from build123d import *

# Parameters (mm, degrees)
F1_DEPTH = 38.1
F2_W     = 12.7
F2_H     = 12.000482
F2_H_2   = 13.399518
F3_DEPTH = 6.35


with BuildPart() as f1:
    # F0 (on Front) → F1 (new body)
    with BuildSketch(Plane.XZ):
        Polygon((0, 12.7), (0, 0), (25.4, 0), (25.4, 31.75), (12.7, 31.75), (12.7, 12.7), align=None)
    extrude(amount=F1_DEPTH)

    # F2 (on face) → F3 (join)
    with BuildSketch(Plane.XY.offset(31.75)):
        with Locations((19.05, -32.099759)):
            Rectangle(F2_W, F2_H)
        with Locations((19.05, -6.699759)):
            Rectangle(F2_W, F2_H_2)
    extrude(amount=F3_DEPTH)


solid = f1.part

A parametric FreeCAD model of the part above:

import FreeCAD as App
import Part
import Sketcher
from FreeCAD import Vector
Q = App.Units.Quantity

doc = App.newDocument("Part")
params = doc.addObject("Spreadsheet::Sheet", "Params")
for row, (alias, value) in enumerate([
    ("sketch1_width", "1 in"),
    ("sketch1_height", "1.25 in"),
    ("pad1_length", "1.5 in"),
    ("sketch2_width", "0.5 in"),
    ("pad2_length", "0.25 in"),
], start=1):
    params.set(f"A{row}", alias)
    params.set(f"B{row}", "=" + value)
    params.setAlias(f"B{row}", alias)

body = doc.addObject("PartDesign::Body", "Body")

# Sketch on XZ plane
sketch1 = doc.addObject("Sketcher::SketchObject", "Sketch")
body.addObject(sketch1)
sketch1.AttachmentSupport = (doc.XZ_Plane, [""])
sketch1.MapMode = "FlatFace"
sketch1.addGeometry(Part.LineSegment(Vector(0, 13, 0), Vector(0, 0, 0)), False)
sketch1.addGeometry(Part.LineSegment(Vector(0, 0, 0), Vector(25, 0, 0)), False)
sketch1.addGeometry(Part.LineSegment(Vector(25, 0, 0), Vector(25, 32, 0)), False)
sketch1.addGeometry(Part.LineSegment(Vector(25, 32, 0), Vector(13, 32, 0)), False)
sketch1.addGeometry(Part.LineSegment(Vector(13, 32, 0), Vector(13, 13, 0)), False)
sketch1.addGeometry(Part.LineSegment(Vector(13, 13, 0), Vector(0, 13, 0)), False)
sketch1.addConstraint(Sketcher.Constraint("Coincident", 0, 2, 1, 1))
sketch1.addConstraint(Sketcher.Constraint("Coincident", 1, 2, 2, 1))
sketch1.addConstraint(Sketcher.Constraint("Coincident", 2, 2, 3, 1))
sketch1.addConstraint(Sketcher.Constraint("Coincident", 3, 2, 4, 1))
sketch1.addConstraint(Sketcher.Constraint("Coincident", 4, 2, 5, 1))
sketch1.addConstraint(Sketcher.Constraint("Coincident", 5, 2, 0, 1))
sketch1.addConstraint(Sketcher.Constraint("Vertical", 0))
sketch1.addConstraint(Sketcher.Constraint("Horizontal", 1))
sketch1.addConstraint(Sketcher.Constraint("Vertical", 2))
sketch1.addConstraint(Sketcher.Constraint("Horizontal", 3))
sketch1.addConstraint(Sketcher.Constraint("Vertical", 4))
sketch1.addConstraint(Sketcher.Constraint("Horizontal", 5))
sketch1.addConstraint(Sketcher.Constraint("Coincident", 0, 2, -1, 1))
sketch1.addConstraint(Sketcher.Constraint("Equal", 3, 5))
sketch1.addConstraint(Sketcher.Constraint("Equal", 5, 0))
sketch1.addConstraint(Sketcher.Constraint("DistanceX", 1, 1, 1, 2, Q("1 in")))
sketch1.addConstraint(Sketcher.Constraint("DistanceY", 2, 1, 2, 2, Q("1.25 in")))
sketch1.setExpression("Constraints[15]", "Params.sketch1_width")
sketch1.setExpression("Constraints[16]", "Params.sketch1_height")
pad1 = doc.addObject("PartDesign::Pad", "Pad")
body.addObject(pad1)
pad1.Profile = sketch1
pad1.setExpression("Length", "Params.pad1_length")

# Sketch on XY plane
sketch2 = doc.addObject("Sketcher::SketchObject", "Sketch001")
body.addObject(sketch2)
sketch2.AttachmentSupport = (doc.XY_Plane, [""])
sketch2.MapMode = "FlatFace"
sketch2.AttachmentOffset = App.Placement(Vector(0, 0, 1.25 * 25.4), App.Rotation())
sketch2.addGeometry(Part.LineSegment(Vector(13, -26, 0), Vector(13, -38, 0)), False)
sketch2.addGeometry(Part.LineSegment(Vector(13, -38, 0), Vector(25, -38, 0)), False)
sketch2.addGeometry(Part.LineSegment(Vector(25, -38, 0), Vector(25, -26, 0)), False)
sketch2.addGeometry(Part.LineSegment(Vector(25, -26, 0), Vector(13, -26, 0)), False)
sketch2.addGeometry(Part.LineSegment(Vector(13, 0, 0), Vector(13, -13, 0)), False)
sketch2.addGeometry(Part.LineSegment(Vector(13, -13, 0), Vector(25, -13, 0)), False)
sketch2.addGeometry(Part.LineSegment(Vector(25, -13, 0), Vector(25, 0, 0)), False)
sketch2.addGeometry(Part.LineSegment(Vector(25, 0, 0), Vector(13, 0, 0)), False)
sketch2.addConstraint(Sketcher.Constraint("Coincident", 0, 2, 1, 1))
sketch2.addConstraint(Sketcher.Constraint("Coincident", 1, 2, 2, 1))
sketch2.addConstraint(Sketcher.Constraint("Coincident", 2, 2, 3, 1))
sketch2.addConstraint(Sketcher.Constraint("Coincident", 3, 2, 0, 1))
sketch2.addConstraint(Sketcher.Constraint("Coincident", 4, 2, 5, 1))
sketch2.addConstraint(Sketcher.Constraint("Coincident", 5, 2, 6, 1))
sketch2.addConstraint(Sketcher.Constraint("Coincident", 6, 2, 7, 1))
sketch2.addConstraint(Sketcher.Constraint("Coincident", 7, 2, 4, 1))
sketch2.addConstraint(Sketcher.Constraint("Vertical", 0))
sketch2.addConstraint(Sketcher.Constraint("Horizontal", 1))
sketch2.addConstraint(Sketcher.Constraint("Vertical", 2))
sketch2.addConstraint(Sketcher.Constraint("Horizontal", 3))
sketch2.addConstraint(Sketcher.Constraint("Vertical", 4))
sketch2.addConstraint(Sketcher.Constraint("Horizontal", 5))
sketch2.addConstraint(Sketcher.Constraint("Vertical", 6))
sketch2.addConstraint(Sketcher.Constraint("Horizontal", 7))
sketch2.addConstraint(Sketcher.Constraint("PointOnObject", 6, 2, -1))
sketch2.addConstraint(Sketcher.Constraint("Vertical", 3, 2, 4, 2))
sketch2.addConstraint(Sketcher.Constraint("Vertical", 2, 2, 5, 2))
sketch2.addConstraint(Sketcher.Constraint("DistanceX", 1, 1, 1, 2, Q("0.5 in")))
sketch2.addConstraint(Sketcher.Constraint("DistanceX", -1, 1, 1, 2, Q("1 in")))
sketch2.addConstraint(Sketcher.Constraint("DistanceY", 0, 2, -1, 1, Q("1.5 in")))
sketch2.addConstraint(Sketcher.Constraint("DistanceY", 3, 2, 4, 2, Q("0.5 in")))
sketch2.addConstraint(Sketcher.Constraint("DistanceY", 0, 2, 0, 1, Q("12.000482 mm")))
sketch2.setExpression("Constraints[19]", "Params.sketch2_width")
pad2 = doc.addObject("PartDesign::Pad", "Pad001")
body.addObject(pad2)
pad2.Profile = sketch2
pad2.setExpression("Length", "Params.pad2_length")

doc.recompute()
